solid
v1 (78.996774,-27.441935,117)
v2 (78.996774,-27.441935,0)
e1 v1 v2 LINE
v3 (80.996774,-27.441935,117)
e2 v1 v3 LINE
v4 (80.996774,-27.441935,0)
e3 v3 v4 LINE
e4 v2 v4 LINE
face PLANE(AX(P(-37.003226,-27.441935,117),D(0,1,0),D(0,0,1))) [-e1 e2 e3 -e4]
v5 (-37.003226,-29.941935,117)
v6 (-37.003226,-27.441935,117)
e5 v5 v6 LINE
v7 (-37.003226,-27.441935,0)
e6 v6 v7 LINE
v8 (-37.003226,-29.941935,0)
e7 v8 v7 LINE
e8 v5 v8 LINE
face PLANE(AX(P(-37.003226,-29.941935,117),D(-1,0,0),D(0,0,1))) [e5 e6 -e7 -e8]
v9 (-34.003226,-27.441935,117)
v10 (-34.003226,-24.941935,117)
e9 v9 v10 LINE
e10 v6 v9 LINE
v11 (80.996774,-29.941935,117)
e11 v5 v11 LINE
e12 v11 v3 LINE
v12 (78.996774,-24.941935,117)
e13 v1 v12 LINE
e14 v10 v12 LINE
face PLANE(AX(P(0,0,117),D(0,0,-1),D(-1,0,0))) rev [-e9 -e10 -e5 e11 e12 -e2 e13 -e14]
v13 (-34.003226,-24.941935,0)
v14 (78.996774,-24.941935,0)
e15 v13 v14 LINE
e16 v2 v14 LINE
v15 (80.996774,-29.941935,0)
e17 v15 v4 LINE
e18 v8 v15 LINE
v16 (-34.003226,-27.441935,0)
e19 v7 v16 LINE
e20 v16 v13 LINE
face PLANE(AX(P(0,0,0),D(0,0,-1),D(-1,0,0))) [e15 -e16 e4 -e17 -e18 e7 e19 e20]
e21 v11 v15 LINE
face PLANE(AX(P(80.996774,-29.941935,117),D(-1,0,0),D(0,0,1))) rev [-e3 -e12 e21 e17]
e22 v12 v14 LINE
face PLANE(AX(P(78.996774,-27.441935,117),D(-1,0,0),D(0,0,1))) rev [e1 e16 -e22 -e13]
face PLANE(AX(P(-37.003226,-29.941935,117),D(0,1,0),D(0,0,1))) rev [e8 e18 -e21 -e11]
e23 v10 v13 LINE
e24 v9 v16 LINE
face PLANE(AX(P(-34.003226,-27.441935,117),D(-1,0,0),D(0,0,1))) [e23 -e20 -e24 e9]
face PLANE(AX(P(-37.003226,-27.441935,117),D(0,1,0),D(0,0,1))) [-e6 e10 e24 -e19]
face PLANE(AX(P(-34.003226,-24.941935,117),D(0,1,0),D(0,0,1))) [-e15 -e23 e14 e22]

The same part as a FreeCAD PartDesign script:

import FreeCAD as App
import Part
import Sketcher
from FreeCAD import Vector


def add_polygon(sketch, points):
    """Adds a closed chain of lines whose ends are joined by coincident constraints."""
    first, n = sketch.GeometryCount, len(points)
    for a, b in zip(points, points[1:] + points[:1]):
        sketch.addGeometry(Part.LineSegment(App.Vector(*a, 0), App.Vector(*b, 0)), False)
    for i in range(n):
        sketch.addConstraint(Sketcher.Constraint("Coincident", first + i, 2, first + (i + 1) % n, 1))

doc = App.newDocument("Part")
params = doc.addObject("Spreadsheet::Sheet", "Params")
for row, (alias, value) in enumerate([
    ("sketch1_width", "118 mm"),
    ("sketch1_width2", "2 mm"),
    ("sketch1_width3", "113 mm"),
    ("sketch1_height", "2.5 mm"),
    ("pad1_length", "117 mm"),
], start=1):
    params.set(f"A{row}", alias)
    params.set(f"B{row}", "=" + value)
    params.setAlias(f"B{row}", alias)

body = doc.addObject("PartDesign::Body", "Body")

# Sketch on XY plane
sketch1 = body.newObject("Sketcher::SketchObject", "Sketch")
sketch1.AttachmentSupport = (doc.getObject("XY_Plane"), [""])
sketch1.MapMode = "FlatFace"
add_polygon(sketch1, [(-37, -27.4), (-37, -29.9), (81, -29.9), (81, -27.4), (79, -27.4), (79, -24.9), (-34, -24.9), (-34, -27.4)])  # lines 0-7
sketch1.addConstraint([
    Sketcher.Constraint("Vertical", 0),
    Sketcher.Constraint("Horizontal", 1),
    Sketcher.Constraint("Vertical", 2),
    Sketcher.Constraint("Horizontal", 3),
    Sketcher.Constraint("Vertical", 4),
    Sketcher.Constraint("Horizontal", 5),
    Sketcher.Constraint("Vertical", 6),
    Sketcher.Constraint("Horizontal", 7),
    Sketcher.Constraint("Horizontal", 3, 2, 6, 2),
    Sketcher.Constraint("Equal", 2, 4),
    Sketcher.Constraint("DistanceX", 1, 1, 1, 2, 118.0),
    Sketcher.Constraint("DistanceX", 3, 2, 3, 1, 2.0),
    Sketcher.Constraint("DistanceX", 5, 2, 5, 1, 113.0),
    Sketcher.Constraint("DistanceY", 0, 2, 0, 1, 2.5),
    Sketcher.Constraint("DistanceX", 0, 2, -1, 1, 37.003226),
    Sketcher.Constraint("DistanceY", 0, 2, -1, 1, 29.941935),
])
sketch1.setExpression("Constraints[18]", "Params.sketch1_width")
sketch1.setExpression("Constraints[19]", "Params.sketch1_width2")
sketch1.setExpression("Constraints[20]", "Params.sketch1_width3")
sketch1.setExpression("Constraints[21]", "Params.sketch1_height")
pad1 = body.newObject("PartDesign::Pad", "Pad")
pad1.Profile = sketch1
pad1.setExpression("Length", "Params.pad1_length")

doc.recompute()
